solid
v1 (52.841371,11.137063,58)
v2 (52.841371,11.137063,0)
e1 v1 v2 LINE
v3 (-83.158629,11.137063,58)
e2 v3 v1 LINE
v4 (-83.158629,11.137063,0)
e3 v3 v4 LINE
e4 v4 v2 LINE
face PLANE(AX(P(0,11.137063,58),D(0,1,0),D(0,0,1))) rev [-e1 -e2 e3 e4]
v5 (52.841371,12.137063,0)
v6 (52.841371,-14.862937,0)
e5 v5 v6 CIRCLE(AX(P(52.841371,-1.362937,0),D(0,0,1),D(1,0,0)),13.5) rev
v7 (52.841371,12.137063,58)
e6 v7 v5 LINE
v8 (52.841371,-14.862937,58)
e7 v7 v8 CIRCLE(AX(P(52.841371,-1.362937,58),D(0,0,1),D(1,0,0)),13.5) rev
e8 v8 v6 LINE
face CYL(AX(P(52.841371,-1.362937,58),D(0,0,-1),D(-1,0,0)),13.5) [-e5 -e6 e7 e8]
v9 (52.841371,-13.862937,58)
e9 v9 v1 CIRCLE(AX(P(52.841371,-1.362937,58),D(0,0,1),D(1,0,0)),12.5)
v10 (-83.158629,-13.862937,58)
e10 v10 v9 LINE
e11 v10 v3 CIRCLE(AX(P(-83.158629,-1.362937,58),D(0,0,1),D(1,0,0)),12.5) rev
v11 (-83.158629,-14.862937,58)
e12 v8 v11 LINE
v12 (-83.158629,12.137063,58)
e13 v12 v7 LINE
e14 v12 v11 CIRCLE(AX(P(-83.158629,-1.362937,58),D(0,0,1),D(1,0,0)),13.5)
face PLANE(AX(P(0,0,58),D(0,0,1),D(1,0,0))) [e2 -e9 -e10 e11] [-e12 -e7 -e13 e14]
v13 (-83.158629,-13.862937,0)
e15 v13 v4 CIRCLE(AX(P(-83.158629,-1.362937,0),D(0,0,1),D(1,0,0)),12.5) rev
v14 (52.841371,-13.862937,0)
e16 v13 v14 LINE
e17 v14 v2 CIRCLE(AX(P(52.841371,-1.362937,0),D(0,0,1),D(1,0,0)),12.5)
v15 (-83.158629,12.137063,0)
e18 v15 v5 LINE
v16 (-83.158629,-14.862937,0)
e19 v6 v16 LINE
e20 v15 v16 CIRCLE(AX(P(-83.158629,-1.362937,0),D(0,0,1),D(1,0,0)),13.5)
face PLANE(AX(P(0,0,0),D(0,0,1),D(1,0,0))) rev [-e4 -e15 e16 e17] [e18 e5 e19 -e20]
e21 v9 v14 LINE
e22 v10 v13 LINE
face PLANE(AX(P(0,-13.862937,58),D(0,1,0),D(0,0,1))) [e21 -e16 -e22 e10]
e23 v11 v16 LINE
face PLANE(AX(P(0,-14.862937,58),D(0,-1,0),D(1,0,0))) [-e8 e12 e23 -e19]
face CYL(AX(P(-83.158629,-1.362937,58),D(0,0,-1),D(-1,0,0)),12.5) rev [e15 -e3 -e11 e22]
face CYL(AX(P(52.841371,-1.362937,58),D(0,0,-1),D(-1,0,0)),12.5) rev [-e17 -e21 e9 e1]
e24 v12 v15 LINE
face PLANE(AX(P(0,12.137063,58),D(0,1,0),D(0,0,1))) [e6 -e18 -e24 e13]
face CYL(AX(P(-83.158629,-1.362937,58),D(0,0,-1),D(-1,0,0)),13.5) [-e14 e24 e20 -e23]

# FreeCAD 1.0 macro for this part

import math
import FreeCAD as App
import Part
import Sketcher
from FreeCAD import Vector
Q = App.Units.Quantity

doc = App.newDocument("Part")
body = doc.addObject("PartDesign::Body", "Body")

# Sketch on XY plane
sketch1 = body.newObject("Sketcher::SketchObject", "Sketch")
sketch1.AttachmentSupport = (doc.getObject("XY_Plane"), [""])
sketch1.MapMode = "FlatFace"
sketch1.addGeometry(Part.ArcOfCircle(Part.Circle(Vector(53, -1, 0), Vector(0, 0, 1), 14), math.radians(-90), math.radians(90)), False)
sketch1.addGeometry(Part.LineSegment(Vector(53, 12, 0), Vector(-83, 12, 0)), False)
sketch1.addGeometry(Part.ArcOfCircle(Part.Circle(Vector(-83, -1, 0), Vector(0, 0, 1), 14), math.radians(90), math.radians(270)), False)
sketch1.addGeometry(Part.LineSegment(Vector(-83, -15, 0), Vector(53, -15, 0)), False)
sketch1.addGeometry(Part.LineSegment(Vector(53, -14, 0), Vector(-83, -14, 0)), False)
sketch1.addGeometry(Part.ArcOfCircle(Part.Circle(Vector(-83, -1, 0), Vector(0, 0, 1), 12), math.radians(90), math.radians(270)), False)
sketch1.addGeometry(Part.LineSegment(Vector(-83, 11, 0), Vector(53, 11, 0)), False)
sketch1.addGeometry(Part.ArcOfCircle(Part.Circle(Vector(53, -1, 0), Vector(0, 0, 1), 12), math.radians(-90), math.radians(90)), False)
sketch1.addConstraint(Sketcher.Constraint("Tangent", 0, 2, 1, 1))
sketch1.addConstraint(Sketcher.Constraint("Tangent", 1, 2, 2, 1))
sketch1.addConstraint(Sketcher.Constraint("Tangent", 2, 2, 3, 1))
sketch1.addConstraint(Sketcher.Constraint("Tangent", 3, 2, 0, 1))
sketch1.addConstraint(Sketcher.Constraint("Tangent", 4, 2, 5, 2))
sketch1.addConstraint(Sketcher.Constraint("Tangent", 5, 1, 6, 1))
sketch1.addConstraint(Sketcher.Constraint("Tangent", 6, 2, 7, 2))
sketch1.addConstraint(Sketcher.Constraint("Tangent", 7, 1, 4, 1))
sketch1.addConstraint(Sketcher.Constraint("Horizontal", 1))
sketch1.addConstraint(Sketcher.Constraint("Horizontal", 3))
sketch1.addConstraint(Sketcher.Constraint("Horizontal", 4))
sketch1.addConstraint(Sketcher.Constraint("Horizontal", 6))
sketch1.addConstraint(Sketcher.Constraint("Coincident", 5, 3, 2, 3))
sketch1.addConstraint(Sketcher.Constraint("Vertical", 7, 3, 0, 2))
sketch1.addConstraint(Sketcher.Constraint("Radius", 0, Q("13.5 mm")))
sketch1.addConstraint(Sketcher.Constraint("Radius", 5, Q("12.5 mm")))
sketch1.addConstraint(Sketcher.Constraint("DistanceX", 1, 2, 1, 1, Q("136 mm")))
sketch1.addConstraint(Sketcher.Constraint("DistanceX", -1, 1, 0, 3, Q("52.841371 mm")))
sketch1.addConstraint(Sketcher.Constraint("DistanceY", 0, 3, -1, 1, Q("1.362937 mm")))
pad1 = body.newObject("PartDesign::Pad", "Pad")
pad1.Profile = sketch1
pad1.Length = 58

doc.recompute()
